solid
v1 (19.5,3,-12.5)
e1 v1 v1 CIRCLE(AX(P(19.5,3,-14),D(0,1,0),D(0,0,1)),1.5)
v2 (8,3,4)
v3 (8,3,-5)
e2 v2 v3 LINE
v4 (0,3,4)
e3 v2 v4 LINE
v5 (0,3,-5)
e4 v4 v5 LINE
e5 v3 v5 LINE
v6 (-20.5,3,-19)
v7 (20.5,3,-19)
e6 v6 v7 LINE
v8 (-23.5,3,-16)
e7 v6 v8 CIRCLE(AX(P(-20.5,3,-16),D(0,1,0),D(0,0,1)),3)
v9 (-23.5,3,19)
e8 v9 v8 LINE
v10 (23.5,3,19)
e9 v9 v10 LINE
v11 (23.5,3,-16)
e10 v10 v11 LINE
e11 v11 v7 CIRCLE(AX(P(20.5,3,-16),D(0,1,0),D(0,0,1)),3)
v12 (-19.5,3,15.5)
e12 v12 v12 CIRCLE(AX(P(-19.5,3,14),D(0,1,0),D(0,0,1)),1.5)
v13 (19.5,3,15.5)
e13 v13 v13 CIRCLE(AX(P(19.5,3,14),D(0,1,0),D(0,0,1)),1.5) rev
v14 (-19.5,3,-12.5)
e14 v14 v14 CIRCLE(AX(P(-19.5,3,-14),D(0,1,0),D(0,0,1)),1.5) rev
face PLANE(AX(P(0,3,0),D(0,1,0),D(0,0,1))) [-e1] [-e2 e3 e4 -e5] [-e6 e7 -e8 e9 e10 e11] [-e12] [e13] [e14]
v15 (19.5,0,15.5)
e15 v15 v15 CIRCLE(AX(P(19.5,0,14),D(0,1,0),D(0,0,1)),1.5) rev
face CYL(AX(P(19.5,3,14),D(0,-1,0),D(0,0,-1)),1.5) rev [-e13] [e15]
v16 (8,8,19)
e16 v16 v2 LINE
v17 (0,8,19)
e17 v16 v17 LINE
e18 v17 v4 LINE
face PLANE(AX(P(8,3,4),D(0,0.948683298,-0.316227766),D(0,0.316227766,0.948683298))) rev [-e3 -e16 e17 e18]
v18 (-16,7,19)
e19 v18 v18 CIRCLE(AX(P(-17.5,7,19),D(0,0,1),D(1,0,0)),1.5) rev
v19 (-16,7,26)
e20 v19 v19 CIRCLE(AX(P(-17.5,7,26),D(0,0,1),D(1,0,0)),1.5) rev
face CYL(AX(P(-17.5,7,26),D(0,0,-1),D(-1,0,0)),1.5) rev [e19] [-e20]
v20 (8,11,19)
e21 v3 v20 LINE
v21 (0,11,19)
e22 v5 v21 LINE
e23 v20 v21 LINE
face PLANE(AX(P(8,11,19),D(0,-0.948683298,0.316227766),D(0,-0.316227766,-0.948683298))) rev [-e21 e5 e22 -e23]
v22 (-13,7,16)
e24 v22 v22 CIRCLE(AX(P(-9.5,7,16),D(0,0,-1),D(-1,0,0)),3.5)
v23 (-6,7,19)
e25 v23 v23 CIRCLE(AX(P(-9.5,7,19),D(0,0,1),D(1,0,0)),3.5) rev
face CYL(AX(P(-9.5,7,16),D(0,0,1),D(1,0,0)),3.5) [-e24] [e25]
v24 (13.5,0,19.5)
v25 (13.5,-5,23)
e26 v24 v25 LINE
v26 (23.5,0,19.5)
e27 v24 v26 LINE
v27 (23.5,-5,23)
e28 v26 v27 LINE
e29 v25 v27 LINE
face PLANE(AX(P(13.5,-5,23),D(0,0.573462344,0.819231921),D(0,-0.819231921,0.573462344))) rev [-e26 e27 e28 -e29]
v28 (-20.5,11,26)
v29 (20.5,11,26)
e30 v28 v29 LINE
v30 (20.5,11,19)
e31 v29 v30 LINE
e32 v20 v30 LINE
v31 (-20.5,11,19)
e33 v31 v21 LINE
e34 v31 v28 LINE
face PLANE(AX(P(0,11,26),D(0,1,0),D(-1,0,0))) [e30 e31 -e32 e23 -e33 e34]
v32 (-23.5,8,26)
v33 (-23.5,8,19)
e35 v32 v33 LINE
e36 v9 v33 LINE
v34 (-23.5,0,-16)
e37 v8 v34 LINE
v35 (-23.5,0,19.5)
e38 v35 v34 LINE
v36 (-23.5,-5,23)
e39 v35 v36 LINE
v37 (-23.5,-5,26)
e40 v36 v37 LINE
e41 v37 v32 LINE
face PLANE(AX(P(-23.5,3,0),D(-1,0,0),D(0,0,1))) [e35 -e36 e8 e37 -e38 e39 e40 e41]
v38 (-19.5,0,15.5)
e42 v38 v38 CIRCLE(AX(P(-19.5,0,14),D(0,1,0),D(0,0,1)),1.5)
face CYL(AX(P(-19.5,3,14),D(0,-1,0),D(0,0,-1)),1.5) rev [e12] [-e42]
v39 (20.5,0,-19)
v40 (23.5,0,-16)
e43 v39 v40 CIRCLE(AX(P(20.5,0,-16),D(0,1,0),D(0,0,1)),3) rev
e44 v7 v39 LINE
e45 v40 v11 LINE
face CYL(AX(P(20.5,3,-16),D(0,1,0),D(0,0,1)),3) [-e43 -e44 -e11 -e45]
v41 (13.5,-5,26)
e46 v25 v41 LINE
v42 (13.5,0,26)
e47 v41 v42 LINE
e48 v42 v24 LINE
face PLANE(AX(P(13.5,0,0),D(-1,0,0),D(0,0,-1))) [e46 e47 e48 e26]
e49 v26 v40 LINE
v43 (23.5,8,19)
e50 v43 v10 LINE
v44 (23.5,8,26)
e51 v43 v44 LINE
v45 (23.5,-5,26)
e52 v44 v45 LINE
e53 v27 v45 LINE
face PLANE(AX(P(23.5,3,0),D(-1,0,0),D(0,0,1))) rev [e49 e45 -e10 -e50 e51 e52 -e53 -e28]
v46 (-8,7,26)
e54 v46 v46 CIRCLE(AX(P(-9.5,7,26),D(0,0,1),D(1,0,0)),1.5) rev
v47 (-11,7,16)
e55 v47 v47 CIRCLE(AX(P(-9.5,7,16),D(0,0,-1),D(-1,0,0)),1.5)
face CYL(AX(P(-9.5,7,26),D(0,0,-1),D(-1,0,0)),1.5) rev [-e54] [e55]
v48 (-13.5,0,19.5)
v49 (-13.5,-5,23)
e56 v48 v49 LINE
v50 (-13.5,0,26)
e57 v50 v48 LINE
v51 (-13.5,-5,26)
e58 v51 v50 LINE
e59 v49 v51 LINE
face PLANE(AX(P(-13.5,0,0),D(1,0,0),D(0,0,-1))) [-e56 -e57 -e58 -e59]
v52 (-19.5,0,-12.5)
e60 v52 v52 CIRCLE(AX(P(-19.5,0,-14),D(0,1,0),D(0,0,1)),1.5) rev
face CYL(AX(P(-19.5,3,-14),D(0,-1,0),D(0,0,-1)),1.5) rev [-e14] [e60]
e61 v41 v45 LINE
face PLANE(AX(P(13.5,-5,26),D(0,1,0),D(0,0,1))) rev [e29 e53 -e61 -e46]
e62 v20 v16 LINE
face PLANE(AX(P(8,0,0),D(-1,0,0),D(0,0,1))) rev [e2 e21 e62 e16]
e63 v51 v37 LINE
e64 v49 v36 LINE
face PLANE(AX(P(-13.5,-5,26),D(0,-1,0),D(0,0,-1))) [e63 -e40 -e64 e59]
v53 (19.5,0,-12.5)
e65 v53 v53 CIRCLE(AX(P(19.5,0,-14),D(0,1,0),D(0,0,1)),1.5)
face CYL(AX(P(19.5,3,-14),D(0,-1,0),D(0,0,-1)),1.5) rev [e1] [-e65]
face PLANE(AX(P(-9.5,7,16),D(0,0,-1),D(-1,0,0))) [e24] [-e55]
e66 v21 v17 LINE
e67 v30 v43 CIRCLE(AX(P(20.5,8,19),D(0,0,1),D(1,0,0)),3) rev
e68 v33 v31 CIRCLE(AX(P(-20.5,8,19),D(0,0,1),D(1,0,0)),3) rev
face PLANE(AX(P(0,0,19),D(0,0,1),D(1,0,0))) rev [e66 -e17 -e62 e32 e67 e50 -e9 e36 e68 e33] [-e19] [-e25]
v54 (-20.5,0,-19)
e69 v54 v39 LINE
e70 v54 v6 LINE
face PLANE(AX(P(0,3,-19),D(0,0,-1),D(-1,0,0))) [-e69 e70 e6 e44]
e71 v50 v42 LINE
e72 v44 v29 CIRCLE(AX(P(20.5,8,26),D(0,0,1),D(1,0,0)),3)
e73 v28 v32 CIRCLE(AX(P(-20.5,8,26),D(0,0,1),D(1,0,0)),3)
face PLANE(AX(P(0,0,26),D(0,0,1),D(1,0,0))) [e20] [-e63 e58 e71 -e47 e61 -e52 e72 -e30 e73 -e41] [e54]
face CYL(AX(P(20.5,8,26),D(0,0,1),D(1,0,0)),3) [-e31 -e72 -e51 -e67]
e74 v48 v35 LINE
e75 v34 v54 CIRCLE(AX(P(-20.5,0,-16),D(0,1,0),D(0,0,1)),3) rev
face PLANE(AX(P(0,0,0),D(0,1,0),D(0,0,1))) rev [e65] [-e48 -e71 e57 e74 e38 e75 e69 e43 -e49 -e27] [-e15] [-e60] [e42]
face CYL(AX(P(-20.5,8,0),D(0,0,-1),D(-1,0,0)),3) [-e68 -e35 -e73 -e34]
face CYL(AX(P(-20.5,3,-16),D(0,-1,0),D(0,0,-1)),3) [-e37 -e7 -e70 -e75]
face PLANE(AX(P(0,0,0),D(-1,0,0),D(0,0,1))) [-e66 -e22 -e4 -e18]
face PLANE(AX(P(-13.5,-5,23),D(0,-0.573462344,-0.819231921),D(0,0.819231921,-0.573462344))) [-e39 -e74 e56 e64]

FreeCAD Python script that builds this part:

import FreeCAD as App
import Part
import Sketcher


def edges_at(feature, points):
    """Names of the edges that pass closest to the given points."""
    edges = feature.Shape.Edges
    near = lambda p: min(range(len(edges)), key=lambda i: edges[i].distToShape(Part.Vertex(*p))[0])
    return sorted({f"Edge{near(p) + 1}" for p in points})


def add_polygon(sketch, points):
    """Adds a closed chain of lines whose ends are joined by coincident constraints."""
    first, n = sketch.GeometryCount, len(points)
    for a, b in zip(points, points[1:] + points[:1]):
        sketch.addGeometry(Part.LineSegment(App.Vector(*a, 0), App.Vector(*b, 0)), False)
    for i in range(n):
        sketch.addConstraint(Sketcher.Constraint("Coincident", first + i, 2, first + (i + 1) % n, 1))

doc = App.newDocument("Part")
body = doc.addObject("PartDesign::Body", "Body")

# Sketch on XZ plane
sketch1 = body.newObject("Sketcher::SketchObject", "Sketch")
sketch1.AttachmentSupport = (doc.getObject("XZ_Plane"), [""])
sketch1.MapMode = "FlatFace"
add_polygon(sketch1, [(-23.5, -19), (-23.5, 19), (23.5, 19), (23.5, -19)])  # lines 0-3
sketch1.addGeometry(Part.Circle(App.Vector(-19.5, 14, 0), App.Vector(0, 0, 1), 1.5), False)  # 4
sketch1.addGeometry(Part.Circle(App.Vector(19.5, 14, 0), App.Vector(0, 0, 1), 1.5), False)  # 5
sketch1.addGeometry(Part.Circle(App.Vector(-19.5, -14, 0), App.Vector(0, 0, 1), 1.5), False)  # 6
sketch1.addGeometry(Part.Circle(App.Vector(19.5, -14, 0), App.Vector(0, 0, 1), 1.5), False)  # 7
sketch1.addConstraint(Sketcher.Constraint("Vertical", 0))
sketch1.addConstraint(Sketcher.Constraint("Horizontal", 1))
sketch1.addConstraint(Sketcher.Constraint("Vertical", 2))
sketch1.addConstraint(Sketcher.Constraint("Horizontal", 3))
sketch1.addConstraint(Sketcher.Constraint("Equal", 4, 5))
sketch1.addConstraint(Sketcher.Constraint("Equal", 5, 6))
sketch1.addConstraint(Sketcher.Constraint("Equal", 6, 7))
sketch1.addConstraint(Sketcher.Constraint("Symmetric", 5, 3, 6, 3, -1, 1))
sketch1.addConstraint(Sketcher.Constraint("Symmetric", 4, 3, 7, 3, -1, 1))
sketch1.addConstraint(Sketcher.Constraint("Symmetric", 0, 2, 2, 2, -1, 1))
sketch1.addConstraint(Sketcher.Constraint("Symmetric", 4, 3, 5, 3, -2))
sketch1.addConstraint(Sketcher.Constraint("Diameter", 4, 3.0))
sketch1.addConstraint(Sketcher.Constraint("DistanceX", 1, 1, 1, 2, 47.0))
sketch1.addConstraint(Sketcher.Constraint("DistanceY", 0, 1, 0, 2, 38.0))
sketch1.addConstraint(Sketcher.Constraint("DistanceY", -1, 1, 4, 3, 14.0))
sketch1.addConstraint(Sketcher.Constraint("DistanceX", 4, 3, 5, 3, 39.0))
pad1 = body.newObject("PartDesign::Pad", "Pad")
pad1.Profile = sketch1
pad1.Length = 3
pad1.Reversed = True

# Sketch on XY plane
sketch2 = body.newObject("Sketcher::SketchObject", "Sketch001")
sketch2.AttachmentSupport = (doc.getObject("XY_Plane"), [""])
sketch2.MapMode = "FlatFace"
sketch2.AttachmentOffset = App.Placement(App.Vector(0, 0, 19), App.Rotation())
add_polygon(sketch2, [(-23.5, 11), (-23.5, 0), (23.5, 0), (23.5, 11)])  # lines 0-3
sketch2.addGeometry(Part.Circle(App.Vector(-17.5, 7, 0), App.Vector(0, 0, 1), 1.5), False)  # 4
sketch2.addGeometry(Part.Circle(App.Vector(-9.5, 7, 0), App.Vector(0, 0, 1), 1.5), False)  # 5
sketch2.addConstraint(Sketcher.Constraint("Vertical", 0))
sketch2.addConstraint(Sketcher.Constraint("Horizontal", 1))
sketch2.addConstraint(Sketcher.Constraint("Vertical", 2))
sketch2.addConstraint(Sketcher.Constraint("Horizontal", 3))
sketch2.addConstraint(Sketcher.Constraint("Equal", 4, 5))
sketch2.addConstraint(Sketcher.Constraint("Symmetric", 0, 2, 1, 2, -1, 1))
sketch2.addConstraint(Sketcher.Constraint("Horizontal", 4, 3, 5, 3))
sketch2.addConstraint(Sketcher.Constraint("Diameter", 4, 3.0))
sketch2.addConstraint(Sketcher.Constraint("DistanceX", 1, 1, 1, 2, 47.0))
sketch2.addConstraint(Sketcher.Constraint("DistanceY", 0, 2, 0, 1, 11.0))
sketch2.addConstraint(Sketcher.Constraint("DistanceY", -1, 1, 4, 3, 7.0))
sketch2.addConstraint(Sketcher.Constraint("DistanceX", 4, 3, 5, 3, 8.0))
sketch2.addConstraint(Sketcher.Constraint("DistanceX", 0, 2, 4, 3, 6.0))
pad2 = body.newObject("PartDesign::Pad", "Pad001")
pad2.Profile = sketch2
pad2.Length = 7

# Sketch on YZ plane
sketch3 = body.newObject("Sketcher::SketchObject", "Sketch002")
sketch3.AttachmentSupport = (doc.getObject("YZ_Plane"), [""])
sketch3.MapMode = "FlatFace"
add_polygon(sketch3, [(11, 19), (8, 19), (3, 4), (3, -5)])  # lines 0-3
sketch3.addConstraint(Sketcher.Constraint("Horizontal", 0))
sketch3.addConstraint(Sketcher.Constraint("Vertical", 2))
sketch3.addConstraint(Sketcher.Constraint("Parallel", 1, 3))
sketch3.addConstraint(Sketcher.Constraint("DistanceX", 0, 2, 0, 1, 3.0))
sketch3.addConstraint(Sketcher.Constraint("DistanceY", 2, 2, 2, 1, 9.0))
sketch3.addConstraint(Sketcher.Constraint("DistanceX", -1, 1, 0, 2, 8.0))
sketch3.addConstraint(Sketcher.Constraint("DistanceY", -1, 1, 0, 2, 19.0))
sketch3.addConstraint(Sketcher.Constraint("DistanceX", -1, 1, 1, 2, 3.0))
pad3 = body.newObject("PartDesign::Pad", "Pad002")
pad3.Profile = sketch3
pad3.Length = 8
doc.recompute()

fillet = body.newObject("PartDesign::Fillet", "Fillet")
fillet.Base = (pad3, edges_at(pad3, [(-23.5, 11, 22.5), (23.5, 11, 22.5)]))
fillet.Radius = 3

# Sketch on YZ plane
sketch4 = body.newObject("Sketcher::SketchObject", "Sketch003")
sketch4.AttachmentSupport = (doc.getObject("YZ_Plane"), [""])
sketch4.MapMode = "FlatFace"
sketch4.AttachmentOffset = App.Placement(App.Vector(0, 0, -23.5), App.Rotation())
add_polygon(sketch4, [(-5, 26), (0, 26), (0, 19.5), (-5, 23)])  # lines 0-3
sketch4.addConstraint(Sketcher.Constraint("Horizontal", 0))
sketch4.addConstraint(Sketcher.Constraint("Vertical", 1))
sketch4.addConstraint(Sketcher.Constraint("Vertical", 3))
sketch4.addConstraint(Sketcher.Constraint("PointOnObject", 0, 2, -2))
sketch4.addConstraint(Sketcher.Constraint("DistanceX", 0, 1, 0, 2, 5.0))
sketch4.addConstraint(Sketcher.Constraint("DistanceY", 3, 1, 3, 2, 3.0))
sketch4.addConstraint(Sketcher.Constraint("DistanceY", 1, 2, 1, 1, 6.5))
sketch4.addConstraint(Sketcher.Constraint("DistanceY", -1, 1, 0, 2, 26.0))
pad4 = body.newObject("PartDesign::Pad", "Pad003")
pad4.Profile = sketch4
pad4.Length = 10
doc.recompute()

mirrored = body.newObject("PartDesign::Mirrored", "Mirrored")
mirrored.Originals = [pad4]
mirrored.MirrorPlane = (doc.getObject("YZ_Plane"), [""])
body.Tip = mirrored
doc.recompute()

fillet2 = body.newObject("PartDesign::Fillet", "Fillet001")
fillet2.Base = (mirrored, edges_at(mirrored, [(-23.5, 1.5, -19), (23.5, 1.5, -19)]))
fillet2.Radius = 3

# Sketch on XY plane
sketch5 = body.newObject("Sketcher::SketchObject", "Sketch004")
sketch5.AttachmentSupport = (doc.getObject("XY_Plane"), [""])
sketch5.MapMode = "FlatFace"
sketch5.AttachmentOffset = App.Placement(App.Vector(0, 0, 16), App.Rotation())
sketch5.addGeometry(Part.Circle(App.Vector(-9.5, 7, 0), App.Vector(0, 0, 1), 3.5), False)
sketch5.addGeometry(Part.Circle(App.Vector(-9.5, 7, 0), App.Vector(0, 0, 1), 1.5), False)
sketch5.addConstraint(Sketcher.Constraint("Coincident", 1, 3, 0, 3))
sketch5.addConstraint(Sketcher.Constraint("Diameter", 0, 7.0))
sketch5.addConstraint(Sketcher.Constraint("Diameter", 1, 3.0))
sketch5.addConstraint(Sketcher.Constraint("DistanceY", -1, 1, 0, 3, 7.0))
sketch5.addConstraint(Sketcher.Constraint("DistanceX", 0, 3, -1, 1, 9.5))
pad5 = body.newObject("PartDesign::Pad", "Pad004")
pad5.Profile = sketch5
pad5.Length = 3

doc.recompute()
